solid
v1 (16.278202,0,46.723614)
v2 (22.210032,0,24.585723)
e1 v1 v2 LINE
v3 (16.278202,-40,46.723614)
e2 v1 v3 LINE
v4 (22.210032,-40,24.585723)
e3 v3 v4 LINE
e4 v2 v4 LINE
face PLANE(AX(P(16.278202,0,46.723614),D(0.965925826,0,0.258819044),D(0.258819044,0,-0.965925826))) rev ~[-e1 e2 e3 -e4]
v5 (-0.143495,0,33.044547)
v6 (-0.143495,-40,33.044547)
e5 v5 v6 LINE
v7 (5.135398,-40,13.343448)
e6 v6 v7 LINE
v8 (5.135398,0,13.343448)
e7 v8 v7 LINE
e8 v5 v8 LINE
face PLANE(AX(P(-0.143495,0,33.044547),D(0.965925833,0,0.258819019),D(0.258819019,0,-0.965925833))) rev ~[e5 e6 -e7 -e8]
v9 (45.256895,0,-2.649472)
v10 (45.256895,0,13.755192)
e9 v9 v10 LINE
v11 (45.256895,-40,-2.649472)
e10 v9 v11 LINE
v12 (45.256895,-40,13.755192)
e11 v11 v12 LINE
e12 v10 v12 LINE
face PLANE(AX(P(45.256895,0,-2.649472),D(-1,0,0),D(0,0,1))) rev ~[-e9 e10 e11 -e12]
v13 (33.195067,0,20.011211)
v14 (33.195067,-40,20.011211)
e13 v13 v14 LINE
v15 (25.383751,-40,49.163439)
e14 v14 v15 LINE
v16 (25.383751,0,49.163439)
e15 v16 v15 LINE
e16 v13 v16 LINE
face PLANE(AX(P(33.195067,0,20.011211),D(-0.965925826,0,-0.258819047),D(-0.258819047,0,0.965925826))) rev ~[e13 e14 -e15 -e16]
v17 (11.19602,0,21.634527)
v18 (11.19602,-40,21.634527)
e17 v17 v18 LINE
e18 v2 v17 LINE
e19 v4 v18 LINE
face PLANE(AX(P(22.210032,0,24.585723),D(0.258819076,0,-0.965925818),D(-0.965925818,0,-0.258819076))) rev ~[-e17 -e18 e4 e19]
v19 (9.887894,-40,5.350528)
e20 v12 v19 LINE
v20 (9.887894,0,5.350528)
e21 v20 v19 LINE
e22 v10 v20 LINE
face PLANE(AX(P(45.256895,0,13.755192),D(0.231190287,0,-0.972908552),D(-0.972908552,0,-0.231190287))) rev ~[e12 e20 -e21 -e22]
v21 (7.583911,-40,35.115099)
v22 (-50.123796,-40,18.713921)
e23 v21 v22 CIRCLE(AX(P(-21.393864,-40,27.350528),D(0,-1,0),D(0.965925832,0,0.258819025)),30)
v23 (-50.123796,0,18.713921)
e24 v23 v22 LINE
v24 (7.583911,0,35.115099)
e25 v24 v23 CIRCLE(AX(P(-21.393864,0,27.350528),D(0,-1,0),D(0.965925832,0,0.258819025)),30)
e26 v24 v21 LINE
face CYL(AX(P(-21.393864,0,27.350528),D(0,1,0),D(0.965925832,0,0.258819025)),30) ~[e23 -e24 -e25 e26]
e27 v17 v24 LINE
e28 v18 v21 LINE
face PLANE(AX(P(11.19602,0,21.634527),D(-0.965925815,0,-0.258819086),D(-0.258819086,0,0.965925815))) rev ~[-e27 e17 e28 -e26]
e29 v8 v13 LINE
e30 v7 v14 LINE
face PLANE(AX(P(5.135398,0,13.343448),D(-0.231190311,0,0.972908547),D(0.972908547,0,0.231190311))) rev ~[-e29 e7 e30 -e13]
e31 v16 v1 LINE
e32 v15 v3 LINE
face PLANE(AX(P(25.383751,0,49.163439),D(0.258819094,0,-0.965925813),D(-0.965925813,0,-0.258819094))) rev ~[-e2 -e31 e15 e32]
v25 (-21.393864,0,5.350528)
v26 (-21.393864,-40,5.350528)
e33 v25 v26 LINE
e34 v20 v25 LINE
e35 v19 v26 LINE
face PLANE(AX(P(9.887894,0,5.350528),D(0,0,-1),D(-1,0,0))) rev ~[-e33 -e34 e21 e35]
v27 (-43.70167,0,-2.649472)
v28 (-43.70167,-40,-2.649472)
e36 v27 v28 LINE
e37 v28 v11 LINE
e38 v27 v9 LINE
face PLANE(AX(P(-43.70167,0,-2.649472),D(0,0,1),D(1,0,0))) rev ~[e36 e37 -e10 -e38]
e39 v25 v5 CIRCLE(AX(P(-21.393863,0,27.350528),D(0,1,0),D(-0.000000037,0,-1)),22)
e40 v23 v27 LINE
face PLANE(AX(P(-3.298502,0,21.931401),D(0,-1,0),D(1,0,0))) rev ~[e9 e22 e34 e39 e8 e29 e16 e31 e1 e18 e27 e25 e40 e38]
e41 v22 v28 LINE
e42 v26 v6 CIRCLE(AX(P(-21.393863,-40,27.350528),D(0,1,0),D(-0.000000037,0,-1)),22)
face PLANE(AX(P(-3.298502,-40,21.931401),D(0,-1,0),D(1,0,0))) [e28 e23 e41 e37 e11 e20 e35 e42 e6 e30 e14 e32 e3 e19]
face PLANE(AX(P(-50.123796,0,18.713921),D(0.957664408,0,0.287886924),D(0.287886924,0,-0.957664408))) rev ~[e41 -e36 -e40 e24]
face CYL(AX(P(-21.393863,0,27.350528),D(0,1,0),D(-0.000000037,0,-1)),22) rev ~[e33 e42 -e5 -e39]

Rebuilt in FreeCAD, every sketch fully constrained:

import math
import FreeCAD as App
import Part
import Sketcher
Q = App.Units.Quantity

doc = App.newDocument("Part")
params = doc.addObject("Spreadsheet::Sheet", "Params")
for row, (alias, value) in enumerate([
    ("sketch1_radius", "30 mm"),
    ("sketch1_radius2", "22 mm"),
    ("pad1_length", "40 mm"),
], start=1):
    params.set(f"A{row}", alias)
    params.set(f"B{row}", "=" + value)
    params.setAlias(f"B{row}", alias)

body = doc.addObject("PartDesign::Body", "Body")

# Sketch on XZ plane
sketch1 = doc.addObject("Sketcher::SketchObject", "Sketch")
body.addObject(sketch1)
sketch1.AttachmentSupport = (doc.XZ_Plane, [""])
sketch1.MapMode = "FlatFace"
sketch1.addGeometry([
    Part.LineSegment(App.Vector(11.19602, 21.634527, 0), App.Vector(7.583911, 35.115099, 0)),  # 0
    Part.ArcOfCircle(Part.Circle(App.Vector(-21.393864, 27.350528, 0), App.Vector(0, 0, 1), 30), math.radians(14.999999), math.radians(196.731491)),  # 1
    Part.LineSegment(App.Vector(-50.123796, 18.713921, 0), App.Vector(-43.70167, -2.649472, 0)),  # 2
    Part.LineSegment(App.Vector(-43.70167, -2.649472, 0), App.Vector(45.256895, -2.649472, 0)),  # 3
    Part.LineSegment(App.Vector(45.256895, -2.649472, 0), App.Vector(45.256895, 13.755192, 0)),  # 4
    Part.LineSegment(App.Vector(45.256895, 13.755192, 0), App.Vector(9.887894, 5.350528, 0)),  # 5
    Part.LineSegment(App.Vector(9.887894, 5.350528, 0), App.Vector(-21.393864, 5.350528, 0)),  # 6
    Part.ArcOfCircle(Part.Circle(App.Vector(-21.393863, 27.350528, 0), App.Vector(0, 0, 1), 22), math.radians(15), math.radians(269.999998)),  # 7
    Part.LineSegment(App.Vector(-0.143495, 33.044547, 0), App.Vector(5.135398, 13.343448, 0)),  # 8
    Part.LineSegment(App.Vector(5.135398, 13.343448, 0), App.Vector(33.195067, 20.011211, 0)),  # 9
    Part.LineSegment(App.Vector(33.195067, 20.011211, 0), App.Vector(25.383751, 49.163439, 0)),  # 10
    Part.LineSegment(App.Vector(25.383751, 49.163439, 0), App.Vector(16.278202, 46.723614, 0)),  # 11
    Part.LineSegment(App.Vector(16.278202, 46.723614, 0), App.Vector(22.210032, 24.585723, 0)),  # 12
    Part.LineSegment(App.Vector(22.210032, 24.585723, 0), App.Vector(11.19602, 21.634527, 0)),  # 13
], False)
sketch1.addConstraint([
    Sketcher.Constraint("Tangent", 0, 2, 1, 1),
    Sketcher.Constraint("Tangent", 1, 2, 2, 1),
    Sketcher.Constraint("Coincident", 2, 2, 3, 1),
    Sketcher.Constraint("Coincident", 3, 2, 4, 1),
    Sketcher.Constraint("Coincident", 4, 2, 5, 1),
    Sketcher.Constraint("Coincident", 5, 2, 6, 1),
    Sketcher.Constraint("Tangent", 6, 2, 7, 2),
    Sketcher.Constraint("Tangent", 7, 1, 8, 1),
    Sketcher.Constraint("Coincident", 8, 2, 9, 1),
    Sketcher.Constraint("Coincident", 9, 2, 10, 1),
    Sketcher.Constraint("Coincident", 10, 2, 11, 1),
    Sketcher.Constraint("Coincident", 11, 2, 12, 1),
    Sketcher.Constraint("Coincident", 12, 2, 13, 1),
    Sketcher.Constraint("Coincident", 13, 2, 0, 1),
    Sketcher.Constraint("Horizontal", 3),
    Sketcher.Constraint("Vertical", 4),
    Sketcher.Constraint("Horizontal", 6),
    Sketcher.Constraint("Coincident", 7, 3, 1, 3),
    Sketcher.Constraint("Parallel", 0, 8),
    Sketcher.Constraint("Parallel", 5, 9),
    Sketcher.Constraint("Parallel", 8, 10),
    Sketcher.Constraint("Perpendicular", 10, 11),
    Sketcher.Constraint("Perpendicular", 11, 12),
    Sketcher.Constraint("Perpendicular", 12, 13),
    Sketcher.Constraint("Radius", 1, Q("30 mm")),
    Sketcher.Constraint("Radius", 7, Q("22 mm")),
    Sketcher.Constraint("Angle", 0, Q("105.000002 deg")),
    Sketcher.Constraint("DistanceY", 2, 2, 1, 3, Q("30 mm")),
    Sketcher.Constraint("DistanceX", 5, 2, 3, 2, Q("35.369001 mm")),
    Sketcher.Constraint("DistanceY", 5, 2, 13, 2, Q("16.283999 mm")),
    Sketcher.Constraint("DistanceX", 6, 2, 6, 1, Q("31.281758 mm")),
    Sketcher.Constraint("DistanceY", -1, 1, 0, 2, Q("35.115099 mm")),
    Sketcher.Constraint("DistanceX", -1, 1, 8, 2, Q("5.135398 mm")),
    Sketcher.Constraint("DistanceY", 8, 2, 7, 1, Q("19.701099 mm")),
    Sketcher.Constraint("Distance", 5, Q("36.35388 mm")),
    Sketcher.Constraint("Distance", 11, Q("9.426758 mm")),
    Sketcher.Constraint("Distance", 12, Q("22.918831 mm")),
    Sketcher.Constraint("DistanceX", 3, 1, 3, 2, Q("88.958565 mm")),
    Sketcher.Constraint("DistanceY", -1, 1, 9, 2, Q("20.011211 mm")),
])
sketch1.setExpression("Constraints[24]", "Params.sketch1_radius")
sketch1.setExpression("Constraints[25]", "Params.sketch1_radius2")
pad1 = doc.addObject("PartDesign::Pad", "Pad")
body.addObject(pad1)
pad1.Profile = sketch1
pad1.setExpression("Length", "Params.pad1_length")

doc.recompute()
